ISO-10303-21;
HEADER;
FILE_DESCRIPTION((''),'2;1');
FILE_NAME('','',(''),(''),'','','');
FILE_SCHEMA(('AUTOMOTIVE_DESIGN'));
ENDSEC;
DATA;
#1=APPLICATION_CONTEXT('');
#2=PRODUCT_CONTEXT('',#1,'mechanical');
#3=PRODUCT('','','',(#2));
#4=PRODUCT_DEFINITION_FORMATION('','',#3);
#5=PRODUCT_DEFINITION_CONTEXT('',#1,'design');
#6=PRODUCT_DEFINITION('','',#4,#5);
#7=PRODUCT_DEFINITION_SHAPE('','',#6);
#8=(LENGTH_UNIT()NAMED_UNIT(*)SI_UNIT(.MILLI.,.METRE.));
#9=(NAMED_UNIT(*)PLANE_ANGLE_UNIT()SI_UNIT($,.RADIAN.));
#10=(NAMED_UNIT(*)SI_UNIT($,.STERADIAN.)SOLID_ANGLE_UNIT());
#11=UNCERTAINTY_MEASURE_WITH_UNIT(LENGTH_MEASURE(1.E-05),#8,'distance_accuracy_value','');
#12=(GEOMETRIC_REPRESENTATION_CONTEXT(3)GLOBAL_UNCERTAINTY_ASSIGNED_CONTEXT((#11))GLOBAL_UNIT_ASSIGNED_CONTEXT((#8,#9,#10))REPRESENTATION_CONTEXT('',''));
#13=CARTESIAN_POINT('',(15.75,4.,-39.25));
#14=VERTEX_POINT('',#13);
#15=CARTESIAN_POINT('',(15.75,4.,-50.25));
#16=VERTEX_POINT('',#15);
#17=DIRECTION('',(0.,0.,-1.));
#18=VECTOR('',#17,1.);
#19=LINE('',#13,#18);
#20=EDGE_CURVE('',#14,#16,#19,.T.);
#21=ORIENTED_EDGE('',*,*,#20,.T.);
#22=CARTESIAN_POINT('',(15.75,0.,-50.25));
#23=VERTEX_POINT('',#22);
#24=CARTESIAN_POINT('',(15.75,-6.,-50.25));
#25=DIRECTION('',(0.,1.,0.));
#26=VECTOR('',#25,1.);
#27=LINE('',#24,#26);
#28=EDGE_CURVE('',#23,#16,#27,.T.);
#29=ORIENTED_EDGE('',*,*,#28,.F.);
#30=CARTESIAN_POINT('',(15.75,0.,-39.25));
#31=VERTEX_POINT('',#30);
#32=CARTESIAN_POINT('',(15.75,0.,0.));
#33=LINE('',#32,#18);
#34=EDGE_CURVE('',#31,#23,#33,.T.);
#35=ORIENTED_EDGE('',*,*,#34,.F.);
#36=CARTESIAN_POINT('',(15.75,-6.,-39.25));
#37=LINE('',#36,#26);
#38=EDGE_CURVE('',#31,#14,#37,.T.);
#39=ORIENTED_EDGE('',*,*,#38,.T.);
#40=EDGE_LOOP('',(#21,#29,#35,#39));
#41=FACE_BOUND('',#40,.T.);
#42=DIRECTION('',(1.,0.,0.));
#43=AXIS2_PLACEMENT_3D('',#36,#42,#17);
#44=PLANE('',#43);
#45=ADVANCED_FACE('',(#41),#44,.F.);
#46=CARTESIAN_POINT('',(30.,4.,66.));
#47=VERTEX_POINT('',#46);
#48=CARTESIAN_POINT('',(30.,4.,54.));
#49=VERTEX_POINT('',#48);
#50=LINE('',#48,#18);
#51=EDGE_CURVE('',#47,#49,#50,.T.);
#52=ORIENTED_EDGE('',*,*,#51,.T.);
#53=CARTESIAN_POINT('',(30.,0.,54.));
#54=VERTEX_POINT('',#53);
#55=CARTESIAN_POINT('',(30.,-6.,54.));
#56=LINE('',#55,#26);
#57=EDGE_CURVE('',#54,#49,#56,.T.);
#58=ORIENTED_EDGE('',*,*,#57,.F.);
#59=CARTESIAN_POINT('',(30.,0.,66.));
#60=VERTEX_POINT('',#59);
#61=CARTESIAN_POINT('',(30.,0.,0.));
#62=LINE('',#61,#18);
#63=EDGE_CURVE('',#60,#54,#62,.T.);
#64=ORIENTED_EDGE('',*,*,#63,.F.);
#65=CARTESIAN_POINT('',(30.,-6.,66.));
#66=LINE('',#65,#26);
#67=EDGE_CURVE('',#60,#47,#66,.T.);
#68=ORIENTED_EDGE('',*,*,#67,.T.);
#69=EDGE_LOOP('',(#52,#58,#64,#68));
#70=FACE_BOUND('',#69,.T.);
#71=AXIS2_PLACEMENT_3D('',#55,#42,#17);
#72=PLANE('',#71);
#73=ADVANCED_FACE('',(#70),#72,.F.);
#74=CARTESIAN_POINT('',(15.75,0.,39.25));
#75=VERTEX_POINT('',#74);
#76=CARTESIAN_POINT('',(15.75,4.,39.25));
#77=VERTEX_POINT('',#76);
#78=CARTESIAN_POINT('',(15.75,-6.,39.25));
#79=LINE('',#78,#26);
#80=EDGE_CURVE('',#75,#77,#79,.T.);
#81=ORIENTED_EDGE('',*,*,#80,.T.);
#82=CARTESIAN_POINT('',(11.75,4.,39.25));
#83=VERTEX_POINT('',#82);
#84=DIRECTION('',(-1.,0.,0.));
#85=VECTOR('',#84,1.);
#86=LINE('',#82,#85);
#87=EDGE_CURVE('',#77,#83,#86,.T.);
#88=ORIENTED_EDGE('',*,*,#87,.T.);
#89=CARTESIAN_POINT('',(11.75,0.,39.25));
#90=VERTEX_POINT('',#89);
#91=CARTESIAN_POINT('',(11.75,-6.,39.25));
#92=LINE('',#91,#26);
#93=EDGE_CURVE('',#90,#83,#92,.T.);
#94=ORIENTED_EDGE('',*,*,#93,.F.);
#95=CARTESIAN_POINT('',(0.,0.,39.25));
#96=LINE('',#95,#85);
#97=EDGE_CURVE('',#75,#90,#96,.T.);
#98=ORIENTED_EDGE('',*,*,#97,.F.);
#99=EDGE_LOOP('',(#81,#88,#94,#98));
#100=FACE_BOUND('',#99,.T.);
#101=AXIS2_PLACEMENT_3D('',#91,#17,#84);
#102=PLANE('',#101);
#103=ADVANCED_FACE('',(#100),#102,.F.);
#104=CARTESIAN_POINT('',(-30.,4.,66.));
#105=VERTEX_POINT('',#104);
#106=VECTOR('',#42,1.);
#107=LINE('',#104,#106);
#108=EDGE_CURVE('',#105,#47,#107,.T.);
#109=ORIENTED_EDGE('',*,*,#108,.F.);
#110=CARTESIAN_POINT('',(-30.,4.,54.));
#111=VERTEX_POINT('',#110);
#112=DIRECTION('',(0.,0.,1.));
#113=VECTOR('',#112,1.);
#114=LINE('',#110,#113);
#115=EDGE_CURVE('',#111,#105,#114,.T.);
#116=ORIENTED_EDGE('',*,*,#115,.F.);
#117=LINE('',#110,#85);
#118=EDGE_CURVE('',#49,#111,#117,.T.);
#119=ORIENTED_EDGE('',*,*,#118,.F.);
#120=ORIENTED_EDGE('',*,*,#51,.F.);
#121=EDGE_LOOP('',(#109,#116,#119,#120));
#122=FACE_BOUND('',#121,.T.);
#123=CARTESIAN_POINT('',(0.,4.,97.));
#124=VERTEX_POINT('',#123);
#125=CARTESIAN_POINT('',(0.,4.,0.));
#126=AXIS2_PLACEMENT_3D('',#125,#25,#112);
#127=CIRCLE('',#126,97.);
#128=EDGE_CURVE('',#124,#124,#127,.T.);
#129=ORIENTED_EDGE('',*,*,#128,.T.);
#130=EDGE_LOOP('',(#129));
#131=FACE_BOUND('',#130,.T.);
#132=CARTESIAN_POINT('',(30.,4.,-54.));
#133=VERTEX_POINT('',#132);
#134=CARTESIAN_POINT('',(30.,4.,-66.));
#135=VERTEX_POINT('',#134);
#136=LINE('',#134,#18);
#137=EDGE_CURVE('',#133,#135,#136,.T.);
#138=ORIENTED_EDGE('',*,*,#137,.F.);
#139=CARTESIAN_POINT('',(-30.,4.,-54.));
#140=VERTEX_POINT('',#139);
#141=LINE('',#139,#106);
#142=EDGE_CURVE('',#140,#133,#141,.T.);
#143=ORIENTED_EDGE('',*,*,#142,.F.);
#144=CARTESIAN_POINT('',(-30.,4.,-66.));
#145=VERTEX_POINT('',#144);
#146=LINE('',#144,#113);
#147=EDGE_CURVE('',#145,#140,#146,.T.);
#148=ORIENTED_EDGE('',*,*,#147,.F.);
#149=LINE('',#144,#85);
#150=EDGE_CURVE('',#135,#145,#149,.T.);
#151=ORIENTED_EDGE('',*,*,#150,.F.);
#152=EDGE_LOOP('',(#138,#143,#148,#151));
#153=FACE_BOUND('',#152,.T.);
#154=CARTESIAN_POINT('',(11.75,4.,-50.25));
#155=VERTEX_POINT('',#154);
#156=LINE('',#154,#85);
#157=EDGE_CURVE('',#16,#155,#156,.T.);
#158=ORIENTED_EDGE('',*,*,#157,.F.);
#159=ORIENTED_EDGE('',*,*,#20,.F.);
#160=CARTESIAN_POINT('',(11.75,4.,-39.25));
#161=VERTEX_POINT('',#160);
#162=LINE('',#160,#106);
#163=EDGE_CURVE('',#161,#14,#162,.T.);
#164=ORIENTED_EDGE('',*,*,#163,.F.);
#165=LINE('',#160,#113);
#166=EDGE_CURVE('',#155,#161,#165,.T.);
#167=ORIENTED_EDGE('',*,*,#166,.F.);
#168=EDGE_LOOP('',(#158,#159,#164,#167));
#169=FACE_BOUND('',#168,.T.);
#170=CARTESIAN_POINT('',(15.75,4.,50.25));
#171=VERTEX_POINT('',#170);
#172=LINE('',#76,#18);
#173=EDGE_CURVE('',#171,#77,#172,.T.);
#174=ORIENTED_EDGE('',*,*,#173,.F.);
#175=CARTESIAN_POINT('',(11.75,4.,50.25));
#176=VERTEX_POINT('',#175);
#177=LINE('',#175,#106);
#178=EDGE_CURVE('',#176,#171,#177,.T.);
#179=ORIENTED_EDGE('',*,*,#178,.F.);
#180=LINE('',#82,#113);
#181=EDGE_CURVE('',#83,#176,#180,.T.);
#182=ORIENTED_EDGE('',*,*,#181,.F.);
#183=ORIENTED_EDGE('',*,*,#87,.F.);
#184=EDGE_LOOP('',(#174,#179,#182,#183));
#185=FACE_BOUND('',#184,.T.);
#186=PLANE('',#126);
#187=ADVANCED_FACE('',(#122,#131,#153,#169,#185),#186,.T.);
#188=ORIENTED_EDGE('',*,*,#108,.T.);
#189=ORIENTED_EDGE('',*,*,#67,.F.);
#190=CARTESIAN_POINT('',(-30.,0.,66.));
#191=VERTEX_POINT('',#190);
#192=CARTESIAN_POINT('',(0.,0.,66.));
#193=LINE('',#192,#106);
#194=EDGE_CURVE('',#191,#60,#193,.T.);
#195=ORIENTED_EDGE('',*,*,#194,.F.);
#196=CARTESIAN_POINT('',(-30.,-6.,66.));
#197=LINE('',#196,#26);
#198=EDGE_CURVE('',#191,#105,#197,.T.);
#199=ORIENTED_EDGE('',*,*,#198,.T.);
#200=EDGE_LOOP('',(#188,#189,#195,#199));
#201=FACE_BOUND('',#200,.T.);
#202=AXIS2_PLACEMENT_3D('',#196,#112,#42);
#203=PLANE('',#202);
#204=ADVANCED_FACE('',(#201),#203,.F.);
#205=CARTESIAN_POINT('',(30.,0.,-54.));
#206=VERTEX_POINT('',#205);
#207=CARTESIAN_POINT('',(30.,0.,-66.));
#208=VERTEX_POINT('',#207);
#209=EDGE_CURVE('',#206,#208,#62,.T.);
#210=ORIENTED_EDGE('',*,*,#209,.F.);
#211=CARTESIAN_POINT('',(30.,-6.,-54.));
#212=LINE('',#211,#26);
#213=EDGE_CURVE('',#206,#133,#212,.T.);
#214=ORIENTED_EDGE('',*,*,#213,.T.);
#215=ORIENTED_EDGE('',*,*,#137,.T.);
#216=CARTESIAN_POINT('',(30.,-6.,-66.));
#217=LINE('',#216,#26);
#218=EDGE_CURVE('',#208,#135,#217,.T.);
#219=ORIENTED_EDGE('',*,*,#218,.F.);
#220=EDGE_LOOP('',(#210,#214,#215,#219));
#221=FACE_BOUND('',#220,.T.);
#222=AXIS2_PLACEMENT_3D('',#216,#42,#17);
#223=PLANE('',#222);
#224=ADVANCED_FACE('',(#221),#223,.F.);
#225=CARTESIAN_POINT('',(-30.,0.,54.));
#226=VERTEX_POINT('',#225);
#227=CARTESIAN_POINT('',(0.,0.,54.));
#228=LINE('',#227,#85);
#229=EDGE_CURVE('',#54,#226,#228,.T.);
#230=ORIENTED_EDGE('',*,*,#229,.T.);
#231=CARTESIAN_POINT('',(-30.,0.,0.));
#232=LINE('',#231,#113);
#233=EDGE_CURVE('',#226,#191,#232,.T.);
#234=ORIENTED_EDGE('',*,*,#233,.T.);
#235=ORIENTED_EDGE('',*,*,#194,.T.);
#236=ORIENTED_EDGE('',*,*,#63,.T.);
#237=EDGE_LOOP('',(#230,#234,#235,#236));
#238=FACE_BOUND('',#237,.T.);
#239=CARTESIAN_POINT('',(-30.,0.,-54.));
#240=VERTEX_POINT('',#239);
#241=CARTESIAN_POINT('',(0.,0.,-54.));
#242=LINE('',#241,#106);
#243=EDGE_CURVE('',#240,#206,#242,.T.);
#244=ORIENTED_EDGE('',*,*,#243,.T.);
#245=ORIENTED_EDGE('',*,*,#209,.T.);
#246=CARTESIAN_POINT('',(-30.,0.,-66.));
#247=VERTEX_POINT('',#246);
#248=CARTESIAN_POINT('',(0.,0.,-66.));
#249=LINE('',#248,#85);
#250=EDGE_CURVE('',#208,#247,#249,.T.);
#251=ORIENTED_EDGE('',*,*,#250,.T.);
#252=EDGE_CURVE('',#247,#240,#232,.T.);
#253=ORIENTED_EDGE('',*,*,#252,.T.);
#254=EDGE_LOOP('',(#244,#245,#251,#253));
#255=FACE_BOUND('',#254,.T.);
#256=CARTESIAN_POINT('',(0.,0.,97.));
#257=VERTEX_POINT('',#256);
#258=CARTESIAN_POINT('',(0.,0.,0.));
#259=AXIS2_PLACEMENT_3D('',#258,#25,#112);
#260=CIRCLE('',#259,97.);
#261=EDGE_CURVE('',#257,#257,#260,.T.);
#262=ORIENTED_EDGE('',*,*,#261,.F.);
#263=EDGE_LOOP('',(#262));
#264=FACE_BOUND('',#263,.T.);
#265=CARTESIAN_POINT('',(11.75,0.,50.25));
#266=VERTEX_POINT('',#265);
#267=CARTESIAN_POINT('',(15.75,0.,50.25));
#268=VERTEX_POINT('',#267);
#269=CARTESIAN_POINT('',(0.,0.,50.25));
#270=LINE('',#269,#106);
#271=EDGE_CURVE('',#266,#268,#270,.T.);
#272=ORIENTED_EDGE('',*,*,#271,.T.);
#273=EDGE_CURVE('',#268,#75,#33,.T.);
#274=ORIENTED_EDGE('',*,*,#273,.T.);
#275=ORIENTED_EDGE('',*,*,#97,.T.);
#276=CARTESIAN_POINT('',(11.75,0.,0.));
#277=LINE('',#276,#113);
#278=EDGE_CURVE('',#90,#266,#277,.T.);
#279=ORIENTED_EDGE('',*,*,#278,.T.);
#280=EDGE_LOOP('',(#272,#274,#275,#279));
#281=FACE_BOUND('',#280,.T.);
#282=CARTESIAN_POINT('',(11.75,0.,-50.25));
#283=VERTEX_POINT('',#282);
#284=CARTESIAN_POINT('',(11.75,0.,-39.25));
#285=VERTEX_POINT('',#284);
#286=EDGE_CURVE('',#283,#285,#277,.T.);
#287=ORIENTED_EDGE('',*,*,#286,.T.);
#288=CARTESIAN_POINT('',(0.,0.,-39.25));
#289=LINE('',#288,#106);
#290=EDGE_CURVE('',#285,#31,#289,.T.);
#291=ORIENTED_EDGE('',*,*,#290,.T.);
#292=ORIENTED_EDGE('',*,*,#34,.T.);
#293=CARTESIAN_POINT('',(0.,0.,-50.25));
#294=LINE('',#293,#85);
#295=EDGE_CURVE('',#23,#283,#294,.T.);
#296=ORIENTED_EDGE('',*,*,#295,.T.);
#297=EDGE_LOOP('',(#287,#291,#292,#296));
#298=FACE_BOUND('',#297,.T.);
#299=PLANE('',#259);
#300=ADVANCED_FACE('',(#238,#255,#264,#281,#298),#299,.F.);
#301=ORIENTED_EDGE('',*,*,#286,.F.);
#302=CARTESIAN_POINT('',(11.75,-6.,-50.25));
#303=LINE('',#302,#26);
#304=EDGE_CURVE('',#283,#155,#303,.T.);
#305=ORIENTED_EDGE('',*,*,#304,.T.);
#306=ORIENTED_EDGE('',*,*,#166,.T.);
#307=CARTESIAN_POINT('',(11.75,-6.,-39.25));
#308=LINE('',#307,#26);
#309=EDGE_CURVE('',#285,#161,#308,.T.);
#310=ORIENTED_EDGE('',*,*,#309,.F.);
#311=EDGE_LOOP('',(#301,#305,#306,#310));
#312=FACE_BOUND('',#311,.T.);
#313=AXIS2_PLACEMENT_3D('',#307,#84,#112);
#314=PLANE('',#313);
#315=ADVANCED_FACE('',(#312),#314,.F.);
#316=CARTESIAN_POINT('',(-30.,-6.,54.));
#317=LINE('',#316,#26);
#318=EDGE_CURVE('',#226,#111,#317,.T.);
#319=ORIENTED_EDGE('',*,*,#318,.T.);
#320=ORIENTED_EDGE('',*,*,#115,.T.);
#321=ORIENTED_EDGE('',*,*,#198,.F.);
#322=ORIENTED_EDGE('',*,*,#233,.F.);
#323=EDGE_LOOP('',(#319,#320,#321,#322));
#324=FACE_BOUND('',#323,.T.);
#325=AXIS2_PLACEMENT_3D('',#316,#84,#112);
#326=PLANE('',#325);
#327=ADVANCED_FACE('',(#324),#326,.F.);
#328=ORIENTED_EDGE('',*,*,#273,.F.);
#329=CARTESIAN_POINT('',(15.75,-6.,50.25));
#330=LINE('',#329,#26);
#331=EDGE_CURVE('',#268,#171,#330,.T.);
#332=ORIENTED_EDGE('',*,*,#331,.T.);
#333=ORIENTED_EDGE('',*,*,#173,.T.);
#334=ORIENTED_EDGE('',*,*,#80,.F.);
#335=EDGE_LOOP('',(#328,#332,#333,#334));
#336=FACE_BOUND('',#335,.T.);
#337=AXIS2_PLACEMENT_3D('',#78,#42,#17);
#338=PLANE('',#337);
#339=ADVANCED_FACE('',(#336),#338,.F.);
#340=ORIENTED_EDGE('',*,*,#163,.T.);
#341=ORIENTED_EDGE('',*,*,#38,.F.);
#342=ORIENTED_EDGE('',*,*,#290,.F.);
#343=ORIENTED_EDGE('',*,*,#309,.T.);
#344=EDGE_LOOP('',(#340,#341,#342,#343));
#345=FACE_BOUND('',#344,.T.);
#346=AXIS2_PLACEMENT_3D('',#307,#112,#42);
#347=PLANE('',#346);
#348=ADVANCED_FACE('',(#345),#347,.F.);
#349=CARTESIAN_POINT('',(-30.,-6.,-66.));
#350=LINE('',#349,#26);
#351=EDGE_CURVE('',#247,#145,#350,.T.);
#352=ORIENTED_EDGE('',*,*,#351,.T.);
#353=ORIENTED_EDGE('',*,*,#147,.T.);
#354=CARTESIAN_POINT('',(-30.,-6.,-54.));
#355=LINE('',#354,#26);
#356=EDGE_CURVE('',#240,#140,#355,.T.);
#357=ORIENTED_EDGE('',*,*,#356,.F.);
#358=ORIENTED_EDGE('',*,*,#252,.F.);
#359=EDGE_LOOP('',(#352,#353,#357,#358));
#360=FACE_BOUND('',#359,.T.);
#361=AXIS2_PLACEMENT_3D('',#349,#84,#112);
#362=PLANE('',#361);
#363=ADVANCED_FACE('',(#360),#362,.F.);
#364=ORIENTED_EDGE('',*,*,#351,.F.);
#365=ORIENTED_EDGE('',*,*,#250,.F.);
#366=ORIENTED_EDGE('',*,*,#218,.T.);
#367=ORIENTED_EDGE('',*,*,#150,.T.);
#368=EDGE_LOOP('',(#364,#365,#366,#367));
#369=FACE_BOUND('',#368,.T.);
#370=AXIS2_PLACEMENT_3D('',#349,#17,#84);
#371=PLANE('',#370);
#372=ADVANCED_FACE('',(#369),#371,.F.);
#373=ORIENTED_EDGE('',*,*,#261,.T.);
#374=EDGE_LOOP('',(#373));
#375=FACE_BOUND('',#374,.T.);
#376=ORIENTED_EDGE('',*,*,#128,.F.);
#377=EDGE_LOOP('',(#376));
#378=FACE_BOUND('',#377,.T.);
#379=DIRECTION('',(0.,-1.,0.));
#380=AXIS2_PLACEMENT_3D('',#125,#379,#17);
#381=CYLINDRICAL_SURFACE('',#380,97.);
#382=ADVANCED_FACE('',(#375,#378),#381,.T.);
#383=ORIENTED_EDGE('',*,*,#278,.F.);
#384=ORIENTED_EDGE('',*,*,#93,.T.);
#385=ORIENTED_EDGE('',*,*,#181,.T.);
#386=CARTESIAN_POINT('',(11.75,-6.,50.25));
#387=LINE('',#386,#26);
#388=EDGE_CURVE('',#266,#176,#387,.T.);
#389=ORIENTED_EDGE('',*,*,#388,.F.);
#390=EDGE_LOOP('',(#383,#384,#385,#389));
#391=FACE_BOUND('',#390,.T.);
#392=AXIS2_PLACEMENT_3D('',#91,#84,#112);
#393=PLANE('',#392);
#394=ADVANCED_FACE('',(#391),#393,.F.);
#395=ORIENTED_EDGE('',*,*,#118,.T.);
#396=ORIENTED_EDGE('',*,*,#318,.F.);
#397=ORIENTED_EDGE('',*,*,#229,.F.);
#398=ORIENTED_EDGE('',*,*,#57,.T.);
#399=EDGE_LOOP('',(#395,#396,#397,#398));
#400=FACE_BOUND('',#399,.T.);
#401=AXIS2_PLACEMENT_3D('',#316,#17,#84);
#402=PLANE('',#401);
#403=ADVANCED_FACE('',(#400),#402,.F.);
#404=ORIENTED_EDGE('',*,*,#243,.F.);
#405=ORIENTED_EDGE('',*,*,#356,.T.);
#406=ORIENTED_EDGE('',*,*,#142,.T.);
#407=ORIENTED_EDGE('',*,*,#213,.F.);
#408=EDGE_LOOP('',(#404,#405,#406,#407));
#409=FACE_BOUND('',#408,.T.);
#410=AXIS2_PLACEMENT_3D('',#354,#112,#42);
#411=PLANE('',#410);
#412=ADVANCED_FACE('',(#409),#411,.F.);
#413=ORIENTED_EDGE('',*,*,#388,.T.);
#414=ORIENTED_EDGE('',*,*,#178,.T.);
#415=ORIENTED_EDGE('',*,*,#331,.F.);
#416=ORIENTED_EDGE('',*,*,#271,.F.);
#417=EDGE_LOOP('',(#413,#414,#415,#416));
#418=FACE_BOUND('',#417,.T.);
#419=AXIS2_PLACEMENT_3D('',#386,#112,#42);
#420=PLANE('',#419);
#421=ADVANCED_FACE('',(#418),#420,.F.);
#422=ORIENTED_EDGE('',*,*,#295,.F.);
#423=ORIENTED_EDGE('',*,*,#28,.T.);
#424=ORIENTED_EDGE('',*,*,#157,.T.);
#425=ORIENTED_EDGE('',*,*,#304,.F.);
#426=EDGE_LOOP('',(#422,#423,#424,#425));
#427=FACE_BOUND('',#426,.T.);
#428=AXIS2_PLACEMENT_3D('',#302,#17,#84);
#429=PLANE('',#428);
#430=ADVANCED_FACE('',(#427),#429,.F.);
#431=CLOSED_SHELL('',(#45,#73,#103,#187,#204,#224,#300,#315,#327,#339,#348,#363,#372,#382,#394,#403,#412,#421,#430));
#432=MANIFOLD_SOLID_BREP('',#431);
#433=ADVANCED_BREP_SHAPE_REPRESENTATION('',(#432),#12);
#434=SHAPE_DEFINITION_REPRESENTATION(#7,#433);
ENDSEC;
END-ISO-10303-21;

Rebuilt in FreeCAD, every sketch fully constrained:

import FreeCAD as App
import Part
import Sketcher
from FreeCAD import Vector

doc = App.newDocument("Part")
body = doc.addObject("PartDesign::Body", "Body")

# Sketch on XZ plane
sketch1 = doc.addObject("Sketcher::SketchObject", "Sketch")
body.addObject(sketch1)
sketch1.AttachmentSupport = (doc.XZ_Plane, [""])
sketch1.MapMode = "FlatFace"
sketch1.addGeometry(Part.Circle(Vector(0, 0, 0), Vector(0, 0, 1), 97), False)
sketch1.addConstraint([
    Sketcher.Constraint("Coincident", 0, 3, -1, 1),
    Sketcher.Constraint("Diameter", 0, 194.0),
])
pad1 = doc.addObject("PartDesign::Pad", "Pad")
body.addObject(pad1)
pad1.Profile = sketch1
pad1.Length = 4
pad1.Reversed = True

# Sketch on XZ plane
sketch2 = doc.addObject("Sketcher::SketchObject", "Sketch001")
body.addObject(sketch2)
sketch2.AttachmentSupport = (doc.XZ_Plane, [""])
sketch2.MapMode = "FlatFace"
sketch2.AttachmentOffset = App.Placement(Vector(0, 0, -4), App.Rotation())
sketch2.addGeometry([
    Part.LineSegment(Vector(-30, 54, 0), Vector(-30, 66, 0)),  # 0
    Part.LineSegment(Vector(-30, 66, 0), Vector(30, 66, 0)),  # 1
    Part.LineSegment(Vector(30, 66, 0), Vector(30, 54, 0)),  # 2
    Part.LineSegment(Vector(30, 54, 0), Vector(-30, 54, 0)),  # 3
    Part.LineSegment(Vector(-30, -66, 0), Vector(-30, -54, 0)),  # 4
    Part.LineSegment(Vector(-30, -54, 0), Vector(30, -54, 0)),  # 5
    Part.LineSegment(Vector(30, -54, 0), Vector(30, -66, 0)),  # 6
    Part.LineSegment(Vector(30, -66, 0), Vector(-30, -66, 0)),  # 7
], False)
sketch2.addConstraint([
    Sketcher.Constraint("Coincident", 0, 2, 1, 1),
    Sketcher.Constraint("Coincident", 1, 2, 2, 1),
    Sketcher.Constraint("Coincident", 2, 2, 3, 1),
    Sketcher.Constraint("Coincident", 3, 2, 0, 1),
    Sketcher.Constraint("Coincident", 4, 2, 5, 1),
    Sketcher.Constraint("Coincident", 5, 2, 6, 1),
    Sketcher.Constraint("Coincident", 6, 2, 7, 1),
    Sketcher.Constraint("Coincident", 7, 2, 4, 1),
    Sketcher.Constraint("Vertical", 0),
    Sketcher.Constraint("Horizontal", 1),
    Sketcher.Constraint("Vertical", 2),
    Sketcher.Constraint("Horizontal", 3),
    Sketcher.Constraint("Vertical", 4),
    Sketcher.Constraint("Horizontal", 5),
    Sketcher.Constraint("Vertical", 6),
    Sketcher.Constraint("Horizontal", 7),
    Sketcher.Constraint("Symmetric", 2, 2, 4, 2, -1, 1),
    Sketcher.Constraint("Symmetric", 0, 2, 6, 2, -1, 1),
    Sketcher.Constraint("Vertical", 3, 2, 4, 2),
    Sketcher.Constraint("DistanceX", 1, 1, 1, 2, 60.0),
    Sketcher.Constraint("DistanceY", 0, 1, 0, 2, 12.0),
    Sketcher.Constraint("DistanceY", -1, 1, 0, 2, 66.0),
])
pocket1 = doc.addObject("PartDesign::Pocket", "Pocket")
body.addObject(pocket1)
pocket1.Profile = sketch2
pocket1.Length = 10
pocket1.Reversed = True

# Sketch on XZ plane
sketch3 = doc.addObject("Sketcher::SketchObject", "Sketch002")
body.addObject(sketch3)
sketch3.AttachmentSupport = (doc.XZ_Plane, [""])
sketch3.MapMode = "FlatFace"
sketch3.AttachmentOffset = App.Placement(Vector(0, 0, -4), App.Rotation())
sketch3.addGeometry([
    Part.LineSegment(Vector(11.8, 39.2, 0), Vector(11.8, 50.2, 0)),  # 0
    Part.LineSegment(Vector(11.8, 50.2, 0), Vector(15.8, 50.2, 0)),  # 1
    Part.LineSegment(Vector(15.8, 50.2, 0), Vector(15.8, 39.2, 0)),  # 2
    Part.LineSegment(Vector(15.8, 39.2, 0), Vector(11.8, 39.2, 0)),  # 3
    Part.LineSegment(Vector(11.8, -50.2, 0), Vector(11.8, -39.2, 0)),  # 4
    Part.LineSegment(Vector(11.8, -39.2, 0), Vector(15.8, -39.2, 0)),  # 5
    Part.LineSegment(Vector(15.8, -39.2, 0), Vector(15.8, -50.2, 0)),  # 6
    Part.LineSegment(Vector(15.8, -50.2, 0), Vector(11.8, -50.2, 0)),  # 7
], False)
sketch3.addConstraint([
    Sketcher.Constraint("Coincident", 0, 2, 1, 1),
    Sketcher.Constraint("Coincident", 1, 2, 2, 1),
    Sketcher.Constraint("Coincident", 2, 2, 3, 1),
    Sketcher.Constraint("Coincident", 3, 2, 0, 1),
    Sketcher.Constraint("Coincident", 4, 2, 5, 1),
    Sketcher.Constraint("Coincident", 5, 2, 6, 1),
    Sketcher.Constraint("Coincident", 6, 2, 7, 1),
    Sketcher.Constraint("Coincident", 7, 2, 4, 1),
    Sketcher.Constraint("Vertical", 0),
    Sketcher.Constraint("Horizontal", 1),
    Sketcher.Constraint("Vertical", 2),
    Sketcher.Constraint("Horizontal", 3),
    Sketcher.Constraint("Vertical", 4),
    Sketcher.Constraint("Horizontal", 5),
    Sketcher.Constraint("Vertical", 6),
    Sketcher.Constraint("Horizontal", 7),
    Sketcher.Constraint("Symmetric", 3, 2, 4, 2, -1),
    Sketcher.Constraint("Symmetric", 1, 2, 6, 2, -1),
    Sketcher.Constraint("DistanceX", 1, 1, 1, 2, 4.0),
    Sketcher.Constraint("DistanceY", 0, 1, 0, 2, 11.0),
    Sketcher.Constraint("DistanceY", 4, 2, 3, 2, 78.5),
    Sketcher.Constraint("DistanceX", -1, 1, 0, 2, 11.75),
])
pocket2 = doc.addObject("PartDesign::Pocket", "Pocket001")
body.addObject(pocket2)
pocket2.Profile = sketch3
pocket2.Length = 10
pocket2.Reversed = True

doc.recompute()
